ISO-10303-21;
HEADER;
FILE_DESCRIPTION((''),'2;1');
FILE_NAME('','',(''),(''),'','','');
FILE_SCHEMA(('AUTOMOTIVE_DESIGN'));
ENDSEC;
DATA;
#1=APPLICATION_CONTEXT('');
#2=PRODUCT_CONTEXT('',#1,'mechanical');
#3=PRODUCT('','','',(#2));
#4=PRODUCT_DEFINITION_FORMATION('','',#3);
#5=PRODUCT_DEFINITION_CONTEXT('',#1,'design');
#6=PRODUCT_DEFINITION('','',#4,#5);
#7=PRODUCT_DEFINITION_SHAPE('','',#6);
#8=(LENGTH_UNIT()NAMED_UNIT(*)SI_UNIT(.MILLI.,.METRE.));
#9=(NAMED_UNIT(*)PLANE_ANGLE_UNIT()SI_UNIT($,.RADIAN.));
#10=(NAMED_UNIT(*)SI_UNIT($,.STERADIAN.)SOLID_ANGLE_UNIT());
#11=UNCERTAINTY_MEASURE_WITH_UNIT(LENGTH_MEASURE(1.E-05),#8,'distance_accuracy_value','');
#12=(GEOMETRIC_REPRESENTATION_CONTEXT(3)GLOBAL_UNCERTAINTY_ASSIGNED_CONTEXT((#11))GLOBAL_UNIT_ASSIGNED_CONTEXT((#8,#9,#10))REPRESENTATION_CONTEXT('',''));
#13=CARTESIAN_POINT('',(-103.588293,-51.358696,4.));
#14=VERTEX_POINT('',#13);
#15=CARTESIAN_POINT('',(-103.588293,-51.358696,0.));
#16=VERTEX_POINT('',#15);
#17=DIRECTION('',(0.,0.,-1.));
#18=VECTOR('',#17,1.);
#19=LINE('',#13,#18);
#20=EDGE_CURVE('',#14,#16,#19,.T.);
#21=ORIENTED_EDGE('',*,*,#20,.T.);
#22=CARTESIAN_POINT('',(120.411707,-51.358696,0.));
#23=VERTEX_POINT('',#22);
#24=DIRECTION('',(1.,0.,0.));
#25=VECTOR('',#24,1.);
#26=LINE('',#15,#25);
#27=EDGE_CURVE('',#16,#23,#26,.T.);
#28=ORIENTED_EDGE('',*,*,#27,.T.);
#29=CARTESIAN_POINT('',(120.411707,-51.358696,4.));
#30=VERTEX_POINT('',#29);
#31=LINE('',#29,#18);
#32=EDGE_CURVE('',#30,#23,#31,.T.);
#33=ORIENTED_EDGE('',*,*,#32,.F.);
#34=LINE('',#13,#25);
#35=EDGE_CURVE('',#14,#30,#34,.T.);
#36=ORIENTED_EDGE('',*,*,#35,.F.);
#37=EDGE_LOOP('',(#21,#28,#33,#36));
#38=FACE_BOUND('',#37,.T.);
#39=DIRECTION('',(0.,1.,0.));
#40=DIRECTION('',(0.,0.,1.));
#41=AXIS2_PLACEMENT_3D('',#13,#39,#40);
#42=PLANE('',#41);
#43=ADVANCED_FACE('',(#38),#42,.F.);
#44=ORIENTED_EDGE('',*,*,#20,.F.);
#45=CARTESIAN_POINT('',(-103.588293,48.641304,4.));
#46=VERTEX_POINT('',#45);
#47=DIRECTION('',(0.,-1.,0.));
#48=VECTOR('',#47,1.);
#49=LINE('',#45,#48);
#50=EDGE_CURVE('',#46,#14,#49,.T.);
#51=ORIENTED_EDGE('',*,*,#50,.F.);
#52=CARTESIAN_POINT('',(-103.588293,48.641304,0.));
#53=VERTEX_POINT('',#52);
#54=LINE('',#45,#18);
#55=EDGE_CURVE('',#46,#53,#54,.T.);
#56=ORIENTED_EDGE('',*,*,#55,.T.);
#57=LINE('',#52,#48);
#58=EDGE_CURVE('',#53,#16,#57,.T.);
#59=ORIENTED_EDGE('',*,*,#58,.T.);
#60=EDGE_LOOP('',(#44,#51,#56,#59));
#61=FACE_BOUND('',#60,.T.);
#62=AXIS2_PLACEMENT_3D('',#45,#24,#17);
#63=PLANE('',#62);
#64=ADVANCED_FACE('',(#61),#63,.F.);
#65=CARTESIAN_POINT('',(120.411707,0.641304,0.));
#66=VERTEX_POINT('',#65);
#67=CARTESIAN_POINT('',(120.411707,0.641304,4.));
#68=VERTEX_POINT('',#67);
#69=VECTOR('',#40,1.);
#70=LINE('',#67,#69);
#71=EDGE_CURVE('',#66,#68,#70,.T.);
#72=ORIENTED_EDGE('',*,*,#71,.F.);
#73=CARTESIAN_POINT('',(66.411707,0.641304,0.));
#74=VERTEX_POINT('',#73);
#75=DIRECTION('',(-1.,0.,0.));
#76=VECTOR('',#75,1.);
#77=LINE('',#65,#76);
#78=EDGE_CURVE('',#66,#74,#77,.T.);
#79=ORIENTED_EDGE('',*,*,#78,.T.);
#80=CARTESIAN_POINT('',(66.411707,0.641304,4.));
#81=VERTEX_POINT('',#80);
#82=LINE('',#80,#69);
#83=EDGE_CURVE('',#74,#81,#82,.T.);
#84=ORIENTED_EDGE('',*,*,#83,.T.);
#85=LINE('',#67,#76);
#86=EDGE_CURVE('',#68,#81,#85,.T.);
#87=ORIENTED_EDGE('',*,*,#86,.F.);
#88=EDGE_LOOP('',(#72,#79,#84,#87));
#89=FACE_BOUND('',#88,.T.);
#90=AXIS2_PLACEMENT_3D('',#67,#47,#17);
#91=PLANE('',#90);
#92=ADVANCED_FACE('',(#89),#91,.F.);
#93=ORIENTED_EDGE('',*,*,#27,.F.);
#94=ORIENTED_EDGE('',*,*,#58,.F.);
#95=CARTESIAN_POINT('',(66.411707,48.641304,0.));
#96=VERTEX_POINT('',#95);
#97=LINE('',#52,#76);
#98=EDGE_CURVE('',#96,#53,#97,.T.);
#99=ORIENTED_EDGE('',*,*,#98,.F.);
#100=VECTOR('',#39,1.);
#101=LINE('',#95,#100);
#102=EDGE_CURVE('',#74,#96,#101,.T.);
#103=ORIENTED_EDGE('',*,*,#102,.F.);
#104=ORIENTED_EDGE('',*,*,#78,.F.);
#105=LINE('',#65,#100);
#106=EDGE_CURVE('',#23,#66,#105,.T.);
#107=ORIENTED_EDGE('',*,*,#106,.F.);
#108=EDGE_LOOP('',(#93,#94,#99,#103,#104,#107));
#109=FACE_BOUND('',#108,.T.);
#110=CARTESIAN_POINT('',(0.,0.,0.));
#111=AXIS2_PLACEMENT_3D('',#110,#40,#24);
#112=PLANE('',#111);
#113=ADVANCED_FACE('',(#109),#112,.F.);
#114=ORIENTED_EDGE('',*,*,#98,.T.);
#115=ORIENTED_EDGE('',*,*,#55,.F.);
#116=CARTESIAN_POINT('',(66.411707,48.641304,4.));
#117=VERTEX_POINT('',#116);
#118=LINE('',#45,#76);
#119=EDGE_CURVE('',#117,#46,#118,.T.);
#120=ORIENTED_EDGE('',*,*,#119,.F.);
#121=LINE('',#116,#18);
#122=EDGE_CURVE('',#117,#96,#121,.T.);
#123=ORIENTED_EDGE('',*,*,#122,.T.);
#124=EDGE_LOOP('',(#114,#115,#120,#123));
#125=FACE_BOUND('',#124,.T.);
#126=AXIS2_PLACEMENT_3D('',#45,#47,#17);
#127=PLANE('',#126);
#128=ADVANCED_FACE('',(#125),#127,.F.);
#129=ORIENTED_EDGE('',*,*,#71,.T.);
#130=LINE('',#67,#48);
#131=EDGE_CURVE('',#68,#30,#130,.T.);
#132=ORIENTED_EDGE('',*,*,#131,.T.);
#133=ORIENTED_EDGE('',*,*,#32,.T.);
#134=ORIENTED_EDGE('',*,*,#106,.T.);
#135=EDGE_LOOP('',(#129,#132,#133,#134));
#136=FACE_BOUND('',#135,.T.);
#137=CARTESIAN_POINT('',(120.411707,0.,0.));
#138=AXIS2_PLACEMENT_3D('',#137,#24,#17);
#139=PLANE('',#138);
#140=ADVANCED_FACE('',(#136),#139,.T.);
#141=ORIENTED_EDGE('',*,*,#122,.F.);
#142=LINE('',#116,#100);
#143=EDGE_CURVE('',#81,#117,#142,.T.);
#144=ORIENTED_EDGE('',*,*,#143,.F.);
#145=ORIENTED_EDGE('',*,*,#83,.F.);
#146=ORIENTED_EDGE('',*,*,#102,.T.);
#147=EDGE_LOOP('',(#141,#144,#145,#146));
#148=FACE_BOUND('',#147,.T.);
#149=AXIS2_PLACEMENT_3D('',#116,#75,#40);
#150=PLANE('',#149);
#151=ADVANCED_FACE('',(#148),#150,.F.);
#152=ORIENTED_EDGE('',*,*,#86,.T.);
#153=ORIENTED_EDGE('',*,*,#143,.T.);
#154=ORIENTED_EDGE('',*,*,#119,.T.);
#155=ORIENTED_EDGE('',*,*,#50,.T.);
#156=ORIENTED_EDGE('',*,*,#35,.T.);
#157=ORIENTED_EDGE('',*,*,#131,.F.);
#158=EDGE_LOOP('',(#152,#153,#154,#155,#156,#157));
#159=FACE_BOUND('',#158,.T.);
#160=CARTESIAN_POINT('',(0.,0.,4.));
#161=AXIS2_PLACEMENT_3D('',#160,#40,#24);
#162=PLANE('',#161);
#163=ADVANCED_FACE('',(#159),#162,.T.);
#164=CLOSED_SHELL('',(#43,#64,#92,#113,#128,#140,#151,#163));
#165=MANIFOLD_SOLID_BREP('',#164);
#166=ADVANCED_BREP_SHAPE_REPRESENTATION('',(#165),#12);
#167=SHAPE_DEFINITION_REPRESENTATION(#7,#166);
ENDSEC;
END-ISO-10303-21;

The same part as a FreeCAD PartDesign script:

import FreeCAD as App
import Part
import Sketcher
from FreeCAD import Vector
Q = App.Units.Quantity


def add_polygon(sketch, points):
    """Adds a closed chain of lines whose ends are joined by coincident constraints."""
    first, n = sketch.GeometryCount, len(points)
    for a, b in zip(points, points[1:] + points[:1]):
        sketch.addGeometry(Part.LineSegment(App.Vector(*a, 0), App.Vector(*b, 0)), False)
    for i in range(n):
        sketch.addConstraint(Sketcher.Constraint("Coincident", first + i, 2, first + (i + 1) % n, 1))

doc = App.newDocument("Part")
body = doc.addObject("PartDesign::Body", "Body")

sketch1 = body.newObject("Sketcher::SketchObject", "Sketch")
sketch1.AttachmentSupport = (doc.getObject("XY_Plane"), [""])
sketch1.MapMode = "FlatFace"
add_polygon(sketch1, [(-104, 49), (-104, -51), (66, -51), (66, 49)])
sketch1.addConstraint(Sketcher.Constraint("Vertical", 0))
sketch1.addConstraint(Sketcher.Constraint("Horizontal", 1))
sketch1.addConstraint(Sketcher.Constraint("Vertical", 2))
sketch1.addConstraint(Sketcher.Constraint("Horizontal", 3))
sketch1.addConstraint(Sketcher.Constraint("DistanceX", 1, 1, 1, 2, Q("170 mm")))
sketch1.addConstraint(Sketcher.Constraint("DistanceY", 0, 2, 0, 1, Q("100 mm")))
sketch1.addConstraint(Sketcher.Constraint("DistanceX", 0, 2, -1, 1, Q("103.588293 mm")))
sketch1.addConstraint(Sketcher.Constraint("DistanceY", 0, 2, -1, 1, Q("51.358696 mm")))
pad1 = body.newObject("PartDesign::Pad", "Pad")
pad1.Profile = sketch1
pad1.Length = 4

sketch2 = body.newObject("Sketcher::SketchObject", "Sketch001")
sketch2.AttachmentSupport = (doc.getObject("YZ_Plane"), [""])
sketch2.MapMode = "FlatFace"
sketch2.AttachmentOffset = App.Placement(Vector(0, 0, 66.411707), App.Rotation())
add_polygon(sketch2, [(0.6, 4), (-51.4, 4), (-51.4, 0), (0.6, 0)])
sketch2.addConstraint(Sketcher.Constraint("Horizontal", 0))
sketch2.addConstraint(Sketcher.Constraint("Vertical", 1))
sketch2.addConstraint(Sketcher.Constraint("Horizontal", 2))
sketch2.addConstraint(Sketcher.Constraint("Vertical", 3))
sketch2.addConstraint(Sketcher.Constraint("PointOnObject", 1, 2, -1))
sketch2.addConstraint(Sketcher.Constraint("DistanceX", 0, 2, 0, 1, Q("52 mm")))
sketch2.addConstraint(Sketcher.Constraint("DistanceY", 1, 2, 1, 1, Q("4 mm")))
sketch2.addConstraint(Sketcher.Constraint("DistanceX", 0, 2, -1, 1, Q("51.358696 mm")))
pad2 = body.newObject("PartDesign::Pad", "Pad001")
pad2.Profile = sketch2
pad2.Length = 54

doc.recompute()
